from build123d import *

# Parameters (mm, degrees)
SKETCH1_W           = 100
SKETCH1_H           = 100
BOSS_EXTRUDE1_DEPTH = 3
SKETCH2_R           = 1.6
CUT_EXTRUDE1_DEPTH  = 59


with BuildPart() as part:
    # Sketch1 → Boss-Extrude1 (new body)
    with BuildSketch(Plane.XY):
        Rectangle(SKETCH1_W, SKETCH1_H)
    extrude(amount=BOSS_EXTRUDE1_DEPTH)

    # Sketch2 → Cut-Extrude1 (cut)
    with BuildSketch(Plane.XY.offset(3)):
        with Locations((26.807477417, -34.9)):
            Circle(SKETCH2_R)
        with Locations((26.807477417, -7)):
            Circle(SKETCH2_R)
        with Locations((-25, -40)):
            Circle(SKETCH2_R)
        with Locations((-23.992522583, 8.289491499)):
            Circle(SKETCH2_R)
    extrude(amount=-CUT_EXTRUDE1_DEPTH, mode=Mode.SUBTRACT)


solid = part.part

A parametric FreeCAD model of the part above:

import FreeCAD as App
import Part
import Sketcher

V = App.Vector
Q = App.Units.Quantity


def add_polygon(sketch, points):
    """Adds a closed chain of lines whose ends are joined by coincident constraints."""
    first, n = sketch.GeometryCount, len(points)
    for a, b in zip(points, points[1:] + points[:1]):
        sketch.addGeometry(Part.LineSegment(App.Vector(*a, 0), App.Vector(*b, 0)), False)
    for i in range(n):
        sketch.addConstraint(Sketcher.Constraint("Coincident", first + i, 2, first + (i + 1) % n, 1))

doc = App.newDocument("Part")
body = doc.addObject("PartDesign::Body", "Body")

sketch1 = body.newObject("Sketcher::SketchObject", "Sketch")
sketch1.AttachmentSupport = (doc.getObject("XY_Plane"), [""])
sketch1.MapMode = "FlatFace"
add_polygon(sketch1, [(-50, 50), (-50, -50), (50, -50), (50, 50)])
sketch1.addConstraint(Sketcher.Constraint("Vertical", 0))
sketch1.addConstraint(Sketcher.Constraint("Horizontal", 1))
sketch1.addConstraint(Sketcher.Constraint("Vertical", 2))
sketch1.addConstraint(Sketcher.Constraint("Horizontal", 3))
sketch1.addConstraint(Sketcher.Constraint("Symmetric", 0, 2, 2, 2, -1, 1))
sketch1.addConstraint(Sketcher.Constraint("Equal", 3, 0))
sketch1.addConstraint(Sketcher.Constraint("DistanceX", 1, 1, 1, 2, Q("100 mm")))
pad1 = body.newObject("PartDesign::Pad", "Pad")
pad1.Profile = sketch1
pad1.Length = 3

sketch2 = body.newObject("Sketcher::SketchObject", "Sketch001")
sketch2.AttachmentSupport = (doc.getObject("XY_Plane"), [""])
sketch2.MapMode = "FlatFace"
sketch2.AttachmentOffset = App.Placement(V(0, 0, 3), App.Rotation())
sketch2.addGeometry(Part.Circle(V(26.8, -34.9, 0), V(0, 0, 1), 1.6), False)
sketch2.addGeometry(Part.Circle(V(26.8, -7, 0), V(0, 0, 1), 1.6), False)
sketch2.addGeometry(Part.Circle(V(-25, -40, 0), V(0, 0, 1), 1.6), False)
sketch2.addGeometry(Part.Circle(V(-24, 8.3, 0), V(0, 0, 1), 1.6), False)
sketch2.addConstraint(Sketcher.Constraint("Equal", 0, 1))
sketch2.addConstraint(Sketcher.Constraint("Equal", 1, 2))
sketch2.addConstraint(Sketcher.Constraint("Equal", 2, 3))
sketch2.addConstraint(Sketcher.Constraint("Vertical", 0, 3, 1, 3))
sketch2.addConstraint(Sketcher.Constraint("Diameter", 0, Q("3.2 mm")))
sketch2.addConstraint(Sketcher.Constraint("DistanceY", 1, 3, -1, 1, Q("7 mm")))
sketch2.addConstraint(Sketcher.Constraint("DistanceX", 2, 3, -1, 1, Q("25 mm")))
sketch2.addConstraint(Sketcher.Constraint("DistanceY", 2, 3, -1, 1, Q("40 mm")))
sketch2.addConstraint(Sketcher.Constraint("DistanceY", 0, 3, -1, 1, Q("34.9 mm")))
sketch2.addConstraint(Sketcher.Constraint("DistanceX", 3, 3, 1, 3, Q("50.8 mm")))
sketch2.addConstraint(Sketcher.Constraint("DistanceY", -1, 1, 3, 3, Q("8.289491 mm")))
sketch2.addConstraint(Sketcher.Constraint("DistanceX", -1, 1, 0, 3, Q("26.807477 mm")))
pocket1 = body.newObject("PartDesign::Pocket", "Pocket")
pocket1.Profile = sketch2
pocket1.Length = 59

doc.recompute()
